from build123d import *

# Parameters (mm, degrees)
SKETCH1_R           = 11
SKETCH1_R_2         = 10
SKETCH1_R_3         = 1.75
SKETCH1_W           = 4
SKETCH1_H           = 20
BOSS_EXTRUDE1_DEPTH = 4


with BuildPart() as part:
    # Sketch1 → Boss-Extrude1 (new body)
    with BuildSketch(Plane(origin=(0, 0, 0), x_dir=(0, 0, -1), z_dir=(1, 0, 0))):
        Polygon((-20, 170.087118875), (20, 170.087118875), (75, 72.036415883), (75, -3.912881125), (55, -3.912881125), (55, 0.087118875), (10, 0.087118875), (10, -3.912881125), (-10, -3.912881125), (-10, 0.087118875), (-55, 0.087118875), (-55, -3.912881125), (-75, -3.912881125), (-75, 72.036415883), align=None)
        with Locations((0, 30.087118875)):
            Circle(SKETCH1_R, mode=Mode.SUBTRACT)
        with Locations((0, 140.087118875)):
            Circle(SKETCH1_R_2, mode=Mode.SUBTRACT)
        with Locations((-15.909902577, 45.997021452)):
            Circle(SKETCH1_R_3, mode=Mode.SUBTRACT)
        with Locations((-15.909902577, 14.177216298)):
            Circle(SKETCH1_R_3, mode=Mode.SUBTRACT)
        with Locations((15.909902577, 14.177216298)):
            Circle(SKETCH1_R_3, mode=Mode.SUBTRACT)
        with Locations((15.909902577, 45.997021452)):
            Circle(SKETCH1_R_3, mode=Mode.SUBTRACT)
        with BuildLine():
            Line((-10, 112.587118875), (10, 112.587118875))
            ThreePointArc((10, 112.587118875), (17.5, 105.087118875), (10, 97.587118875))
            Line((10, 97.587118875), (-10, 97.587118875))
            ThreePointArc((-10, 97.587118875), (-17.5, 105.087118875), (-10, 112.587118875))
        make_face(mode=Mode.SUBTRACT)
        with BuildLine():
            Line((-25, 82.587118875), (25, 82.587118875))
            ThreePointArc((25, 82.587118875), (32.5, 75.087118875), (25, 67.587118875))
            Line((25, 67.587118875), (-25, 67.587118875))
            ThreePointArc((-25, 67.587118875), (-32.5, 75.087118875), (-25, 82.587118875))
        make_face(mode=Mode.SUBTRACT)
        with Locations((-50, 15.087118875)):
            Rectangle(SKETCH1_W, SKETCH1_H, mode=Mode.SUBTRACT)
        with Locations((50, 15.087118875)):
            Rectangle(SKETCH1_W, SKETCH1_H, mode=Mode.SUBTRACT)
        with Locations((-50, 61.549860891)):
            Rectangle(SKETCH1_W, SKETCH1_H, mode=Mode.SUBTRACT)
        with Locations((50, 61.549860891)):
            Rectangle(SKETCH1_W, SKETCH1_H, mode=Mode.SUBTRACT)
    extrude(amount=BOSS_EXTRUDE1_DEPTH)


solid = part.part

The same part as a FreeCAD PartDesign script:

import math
import FreeCAD as App
import Part
import Sketcher
from FreeCAD import Vector
Q = App.Units.Quantity


def add_polygon(sketch, points):
    """Adds a closed chain of lines whose ends are joined by coincident constraints."""
    first, n = sketch.GeometryCount, len(points)
    for a, b in zip(points, points[1:] + points[:1]):
        sketch.addGeometry(Part.LineSegment(App.Vector(*a, 0), App.Vector(*b, 0)), False)
    for i in range(n):
        sketch.addConstraint(Sketcher.Constraint("Coincident", first + i, 2, first + (i + 1) % n, 1))

doc = App.newDocument("Part")
body = doc.addObject("PartDesign::Body", "Body")

sketch1 = body.newObject("Sketcher::SketchObject", "Sketch")
sketch1.AttachmentSupport = (doc.getObject("YZ_Plane"), [""])
sketch1.MapMode = "FlatFace"
add_polygon(sketch1, [(170.1, -20), (170.1, 20), (72, 75), (-3.9, 75), (-3.9, 55), (0.1, 55), (0.1, 10), (-3.9, 10), (-3.9, -10), (0.1, -10), (0.1, -55), (-3.9, -55), (-3.9, -75), (72, -75)])
add_polygon(sketch1, [(5.1, -48), (25.1, -48), (25.1, -52), (5.1, -52)])
sketch1.addGeometry(Part.Circle(Vector(14.2, -15.9, 0), Vector(0, 0, 1), 1.8), False)
add_polygon(sketch1, [(51.5, -48), (71.5, -48), (71.5, -52), (51.5, -52)])
sketch1.addGeometry(Part.Circle(Vector(46, -15.9, 0), Vector(0, 0, 1), 1.8), False)
sketch1.addGeometry(Part.Circle(Vector(14.2, 15.9, 0), Vector(0, 0, 1), 1.8), False)
sketch1.addGeometry(Part.Circle(Vector(30.1, 0, 0), Vector(0, 0, 1), 11), False)
add_polygon(sketch1, [(5.1, 52), (25.1, 52), (25.1, 48), (5.1, 48)])
sketch1.addGeometry(Part.Circle(Vector(46, 15.9, 0), Vector(0, 0, 1), 1.8), False)
sketch1.addGeometry(Part.LineSegment(Vector(82.6, 25, 0), Vector(82.6, -25, 0)), False)
sketch1.addGeometry(Part.ArcOfCircle(Part.Circle(Vector(75.1, -25, 0), Vector(0, 0, 1), 7.5), math.radians(180), math.radians(360)), False)
sketch1.addGeometry(Part.LineSegment(Vector(67.6, -25, 0), Vector(67.6, 25, 0)), False)
sketch1.addGeometry(Part.ArcOfCircle(Part.Circle(Vector(75.1, 25, 0), Vector(0, 0, 1), 7.5), math.radians(0), math.radians(180)), False)
add_polygon(sketch1, [(51.5, 52), (71.5, 52), (71.5, 48), (51.5, 48)])
sketch1.addGeometry(Part.LineSegment(Vector(112.6, 10, 0), Vector(112.6, -10, 0)), False)
sketch1.addGeometry(Part.ArcOfCircle(Part.Circle(Vector(105.1, -10, 0), Vector(0, 0, 1), 7.5), math.radians(180), math.radians(360)), False)
sketch1.addGeometry(Part.LineSegment(Vector(97.6, -10, 0), Vector(97.6, 10, 0)), False)
sketch1.addGeometry(Part.ArcOfCircle(Part.Circle(Vector(105.1, 10, 0), Vector(0, 0, 1), 7.5), math.radians(0), math.radians(180)), False)
sketch1.addGeometry(Part.Circle(Vector(140.1, 0, 0), Vector(0, 0, 1), 10), False)
sketch1.addConstraint([
    Sketcher.Constraint("Tangent", 31, 2, 32, 2),
    Sketcher.Constraint("Tangent", 32, 1, 33, 1),
    Sketcher.Constraint("Tangent", 33, 2, 34, 2),
    Sketcher.Constraint("Tangent", 34, 1, 31, 1),
    Sketcher.Constraint("Tangent", 39, 2, 40, 2),
    Sketcher.Constraint("Tangent", 40, 1, 41, 1),
    Sketcher.Constraint("Tangent", 41, 2, 42, 2),
    Sketcher.Constraint("Tangent", 42, 1, 39, 1),
    Sketcher.Constraint("Vertical", 0),
    Sketcher.Constraint("Horizontal", 2),
    Sketcher.Constraint("Vertical", 3),
    Sketcher.Constraint("Horizontal", 4),
    Sketcher.Constraint("Vertical", 5),
    Sketcher.Constraint("Horizontal", 6),
    Sketcher.Constraint("Vertical", 7),
    Sketcher.Constraint("Horizontal", 8),
    Sketcher.Constraint("Vertical", 9),
    Sketcher.Constraint("Horizontal", 10),
    Sketcher.Constraint("Vertical", 11),
    Sketcher.Constraint("Horizontal", 12),
    Sketcher.Constraint("Horizontal", 14),
    Sketcher.Constraint("Vertical", 15),
    Sketcher.Constraint("Horizontal", 16),
    Sketcher.Constraint("Vertical", 17),
    Sketcher.Constraint("Horizontal", 19),
    Sketcher.Constraint("Vertical", 20),
    Sketcher.Constraint("Horizontal", 21),
    Sketcher.Constraint("Vertical", 22),
    Sketcher.Constraint("Horizontal", 26),
    Sketcher.Constraint("Vertical", 27),
    Sketcher.Constraint("Horizontal", 28),
    Sketcher.Constraint("Vertical", 29),
    Sketcher.Constraint("Vertical", 31),
    Sketcher.Constraint("Vertical", 33),
    Sketcher.Constraint("Horizontal", 35),
    Sketcher.Constraint("Vertical", 36),
    Sketcher.Constraint("Horizontal", 37),
    Sketcher.Constraint("Vertical", 38),
    Sketcher.Constraint("Vertical", 39),
    Sketcher.Constraint("Vertical", 41),
    Sketcher.Constraint("Equal", 18, 23),
    Sketcher.Constraint("Equal", 23, 24),
    Sketcher.Constraint("Equal", 24, 30),
    Sketcher.Constraint("Equal", 34, 40),
    Sketcher.Constraint("Symmetric", 18, 3, 24, 3, -1),
    Sketcher.Constraint("Symmetric", 23, 3, 30, 3, -1),
    Sketcher.Constraint("Symmetric", 5, 2, 8, 2, -1),
    Sketcher.Constraint("Symmetric", 3, 2, 10, 2, -1),
    Sketcher.Constraint("Symmetric", 1, 2, 12, 2, -1),
    Sketcher.Constraint("Symmetric", 15, 2, 26, 2, -1),
    Sketcher.Constraint("Symmetric", 17, 2, 28, 2, -1),
    Sketcher.Constraint("Symmetric", 20, 2, 35, 2, -1),
    Sketcher.Constraint("Symmetric", 22, 2, 37, 2, -1),
    Sketcher.Constraint("PointOnObject", 25, 3, -1),
    Sketcher.Constraint("PointOnObject", 43, 3, -1),
    Sketcher.Constraint("Horizontal", 18, 3, 23, 3),
    Sketcher.Constraint("Horizontal", 42, 3, 5, 2),
    Sketcher.Constraint("Horizontal", 40, 3, 7, 2),
    Sketcher.Constraint("Horizontal", 17, 2, 19, 2),
    Sketcher.Constraint("Horizontal", 16, 2, 20, 2),
    Sketcher.Constraint("Vertical", 3, 2, 6, 2),
    Sketcher.Constraint("Equal", 16, 19),
    Sketcher.Constraint("Equal", 37, 3),
    Sketcher.Constraint("Equal", 3, 7),
    Sketcher.Constraint("Equal", 10, 15),
    Sketcher.Constraint("Equal", 1, 13),
    Sketcher.Constraint("Diameter", 25, Q("22 mm")),
    Sketcher.Constraint("Diameter", 43, Q("20 mm")),
    Sketcher.Constraint("Diameter", 18, Q("3.5 mm")),
    Sketcher.Constraint("Radius", 32, Q("7.5 mm")),
    Sketcher.Constraint("DistanceX", 4, 1, 4, 2, Q("4 mm")),
    Sketcher.Constraint("DistanceX", 14, 1, 14, 2, Q("20 mm")),
    Sketcher.Constraint("DistanceY", 0, 1, 0, 2, Q("40 mm")),
    Sketcher.Constraint("DistanceY", 5, 2, 5, 1, Q("45 mm")),
    Sketcher.Constraint("DistanceY", 31, 2, 31, 1, Q("50 mm")),
    Sketcher.Constraint("DistanceY", 32, 3, -1, 1, Q("25 mm")),
    Sketcher.Constraint("DistanceY", 14, 2, -1, 1, Q("48 mm")),
    Sketcher.Constraint("DistanceX", 25, 3, 32, 3, Q("45 mm")),
    Sketcher.Constraint("DistanceX", 32, 3, 40, 3, Q("30 mm")),
    Sketcher.Constraint("DistanceX", 40, 3, 43, 3, Q("35 mm")),
    Sketcher.Constraint("DistanceX", 43, 3, 0, 2, Q("30 mm")),
    Sketcher.Constraint("DistanceX", 2, 2, 25, 3, Q("34 mm")),
    Sketcher.Constraint("DistanceX", 9, 2, 14, 2, Q("25 mm")),
    Sketcher.Constraint("DistanceX", 24, 3, 1, 2, Q("57.8592 mm")),
    Sketcher.Constraint("Distance", 1, Q("112.423042 mm")),
    Sketcher.Constraint("DistanceX", -1, 1, 23, 3, Q("45.997021 mm")),
    Sketcher.Constraint("DistanceX", -1, 1, 25, 3, Q("30.087119 mm")),
    Sketcher.Constraint("DistanceX", -1, 1, 19, 2, Q("71.549861 mm")),
    Sketcher.Constraint("DistanceY", 18, 3, -1, 1, Q("15.909903 mm")),
])
pad1 = body.newObject("PartDesign::Pad", "Pad")
pad1.Profile = sketch1
pad1.Length = 4

doc.recompute()
